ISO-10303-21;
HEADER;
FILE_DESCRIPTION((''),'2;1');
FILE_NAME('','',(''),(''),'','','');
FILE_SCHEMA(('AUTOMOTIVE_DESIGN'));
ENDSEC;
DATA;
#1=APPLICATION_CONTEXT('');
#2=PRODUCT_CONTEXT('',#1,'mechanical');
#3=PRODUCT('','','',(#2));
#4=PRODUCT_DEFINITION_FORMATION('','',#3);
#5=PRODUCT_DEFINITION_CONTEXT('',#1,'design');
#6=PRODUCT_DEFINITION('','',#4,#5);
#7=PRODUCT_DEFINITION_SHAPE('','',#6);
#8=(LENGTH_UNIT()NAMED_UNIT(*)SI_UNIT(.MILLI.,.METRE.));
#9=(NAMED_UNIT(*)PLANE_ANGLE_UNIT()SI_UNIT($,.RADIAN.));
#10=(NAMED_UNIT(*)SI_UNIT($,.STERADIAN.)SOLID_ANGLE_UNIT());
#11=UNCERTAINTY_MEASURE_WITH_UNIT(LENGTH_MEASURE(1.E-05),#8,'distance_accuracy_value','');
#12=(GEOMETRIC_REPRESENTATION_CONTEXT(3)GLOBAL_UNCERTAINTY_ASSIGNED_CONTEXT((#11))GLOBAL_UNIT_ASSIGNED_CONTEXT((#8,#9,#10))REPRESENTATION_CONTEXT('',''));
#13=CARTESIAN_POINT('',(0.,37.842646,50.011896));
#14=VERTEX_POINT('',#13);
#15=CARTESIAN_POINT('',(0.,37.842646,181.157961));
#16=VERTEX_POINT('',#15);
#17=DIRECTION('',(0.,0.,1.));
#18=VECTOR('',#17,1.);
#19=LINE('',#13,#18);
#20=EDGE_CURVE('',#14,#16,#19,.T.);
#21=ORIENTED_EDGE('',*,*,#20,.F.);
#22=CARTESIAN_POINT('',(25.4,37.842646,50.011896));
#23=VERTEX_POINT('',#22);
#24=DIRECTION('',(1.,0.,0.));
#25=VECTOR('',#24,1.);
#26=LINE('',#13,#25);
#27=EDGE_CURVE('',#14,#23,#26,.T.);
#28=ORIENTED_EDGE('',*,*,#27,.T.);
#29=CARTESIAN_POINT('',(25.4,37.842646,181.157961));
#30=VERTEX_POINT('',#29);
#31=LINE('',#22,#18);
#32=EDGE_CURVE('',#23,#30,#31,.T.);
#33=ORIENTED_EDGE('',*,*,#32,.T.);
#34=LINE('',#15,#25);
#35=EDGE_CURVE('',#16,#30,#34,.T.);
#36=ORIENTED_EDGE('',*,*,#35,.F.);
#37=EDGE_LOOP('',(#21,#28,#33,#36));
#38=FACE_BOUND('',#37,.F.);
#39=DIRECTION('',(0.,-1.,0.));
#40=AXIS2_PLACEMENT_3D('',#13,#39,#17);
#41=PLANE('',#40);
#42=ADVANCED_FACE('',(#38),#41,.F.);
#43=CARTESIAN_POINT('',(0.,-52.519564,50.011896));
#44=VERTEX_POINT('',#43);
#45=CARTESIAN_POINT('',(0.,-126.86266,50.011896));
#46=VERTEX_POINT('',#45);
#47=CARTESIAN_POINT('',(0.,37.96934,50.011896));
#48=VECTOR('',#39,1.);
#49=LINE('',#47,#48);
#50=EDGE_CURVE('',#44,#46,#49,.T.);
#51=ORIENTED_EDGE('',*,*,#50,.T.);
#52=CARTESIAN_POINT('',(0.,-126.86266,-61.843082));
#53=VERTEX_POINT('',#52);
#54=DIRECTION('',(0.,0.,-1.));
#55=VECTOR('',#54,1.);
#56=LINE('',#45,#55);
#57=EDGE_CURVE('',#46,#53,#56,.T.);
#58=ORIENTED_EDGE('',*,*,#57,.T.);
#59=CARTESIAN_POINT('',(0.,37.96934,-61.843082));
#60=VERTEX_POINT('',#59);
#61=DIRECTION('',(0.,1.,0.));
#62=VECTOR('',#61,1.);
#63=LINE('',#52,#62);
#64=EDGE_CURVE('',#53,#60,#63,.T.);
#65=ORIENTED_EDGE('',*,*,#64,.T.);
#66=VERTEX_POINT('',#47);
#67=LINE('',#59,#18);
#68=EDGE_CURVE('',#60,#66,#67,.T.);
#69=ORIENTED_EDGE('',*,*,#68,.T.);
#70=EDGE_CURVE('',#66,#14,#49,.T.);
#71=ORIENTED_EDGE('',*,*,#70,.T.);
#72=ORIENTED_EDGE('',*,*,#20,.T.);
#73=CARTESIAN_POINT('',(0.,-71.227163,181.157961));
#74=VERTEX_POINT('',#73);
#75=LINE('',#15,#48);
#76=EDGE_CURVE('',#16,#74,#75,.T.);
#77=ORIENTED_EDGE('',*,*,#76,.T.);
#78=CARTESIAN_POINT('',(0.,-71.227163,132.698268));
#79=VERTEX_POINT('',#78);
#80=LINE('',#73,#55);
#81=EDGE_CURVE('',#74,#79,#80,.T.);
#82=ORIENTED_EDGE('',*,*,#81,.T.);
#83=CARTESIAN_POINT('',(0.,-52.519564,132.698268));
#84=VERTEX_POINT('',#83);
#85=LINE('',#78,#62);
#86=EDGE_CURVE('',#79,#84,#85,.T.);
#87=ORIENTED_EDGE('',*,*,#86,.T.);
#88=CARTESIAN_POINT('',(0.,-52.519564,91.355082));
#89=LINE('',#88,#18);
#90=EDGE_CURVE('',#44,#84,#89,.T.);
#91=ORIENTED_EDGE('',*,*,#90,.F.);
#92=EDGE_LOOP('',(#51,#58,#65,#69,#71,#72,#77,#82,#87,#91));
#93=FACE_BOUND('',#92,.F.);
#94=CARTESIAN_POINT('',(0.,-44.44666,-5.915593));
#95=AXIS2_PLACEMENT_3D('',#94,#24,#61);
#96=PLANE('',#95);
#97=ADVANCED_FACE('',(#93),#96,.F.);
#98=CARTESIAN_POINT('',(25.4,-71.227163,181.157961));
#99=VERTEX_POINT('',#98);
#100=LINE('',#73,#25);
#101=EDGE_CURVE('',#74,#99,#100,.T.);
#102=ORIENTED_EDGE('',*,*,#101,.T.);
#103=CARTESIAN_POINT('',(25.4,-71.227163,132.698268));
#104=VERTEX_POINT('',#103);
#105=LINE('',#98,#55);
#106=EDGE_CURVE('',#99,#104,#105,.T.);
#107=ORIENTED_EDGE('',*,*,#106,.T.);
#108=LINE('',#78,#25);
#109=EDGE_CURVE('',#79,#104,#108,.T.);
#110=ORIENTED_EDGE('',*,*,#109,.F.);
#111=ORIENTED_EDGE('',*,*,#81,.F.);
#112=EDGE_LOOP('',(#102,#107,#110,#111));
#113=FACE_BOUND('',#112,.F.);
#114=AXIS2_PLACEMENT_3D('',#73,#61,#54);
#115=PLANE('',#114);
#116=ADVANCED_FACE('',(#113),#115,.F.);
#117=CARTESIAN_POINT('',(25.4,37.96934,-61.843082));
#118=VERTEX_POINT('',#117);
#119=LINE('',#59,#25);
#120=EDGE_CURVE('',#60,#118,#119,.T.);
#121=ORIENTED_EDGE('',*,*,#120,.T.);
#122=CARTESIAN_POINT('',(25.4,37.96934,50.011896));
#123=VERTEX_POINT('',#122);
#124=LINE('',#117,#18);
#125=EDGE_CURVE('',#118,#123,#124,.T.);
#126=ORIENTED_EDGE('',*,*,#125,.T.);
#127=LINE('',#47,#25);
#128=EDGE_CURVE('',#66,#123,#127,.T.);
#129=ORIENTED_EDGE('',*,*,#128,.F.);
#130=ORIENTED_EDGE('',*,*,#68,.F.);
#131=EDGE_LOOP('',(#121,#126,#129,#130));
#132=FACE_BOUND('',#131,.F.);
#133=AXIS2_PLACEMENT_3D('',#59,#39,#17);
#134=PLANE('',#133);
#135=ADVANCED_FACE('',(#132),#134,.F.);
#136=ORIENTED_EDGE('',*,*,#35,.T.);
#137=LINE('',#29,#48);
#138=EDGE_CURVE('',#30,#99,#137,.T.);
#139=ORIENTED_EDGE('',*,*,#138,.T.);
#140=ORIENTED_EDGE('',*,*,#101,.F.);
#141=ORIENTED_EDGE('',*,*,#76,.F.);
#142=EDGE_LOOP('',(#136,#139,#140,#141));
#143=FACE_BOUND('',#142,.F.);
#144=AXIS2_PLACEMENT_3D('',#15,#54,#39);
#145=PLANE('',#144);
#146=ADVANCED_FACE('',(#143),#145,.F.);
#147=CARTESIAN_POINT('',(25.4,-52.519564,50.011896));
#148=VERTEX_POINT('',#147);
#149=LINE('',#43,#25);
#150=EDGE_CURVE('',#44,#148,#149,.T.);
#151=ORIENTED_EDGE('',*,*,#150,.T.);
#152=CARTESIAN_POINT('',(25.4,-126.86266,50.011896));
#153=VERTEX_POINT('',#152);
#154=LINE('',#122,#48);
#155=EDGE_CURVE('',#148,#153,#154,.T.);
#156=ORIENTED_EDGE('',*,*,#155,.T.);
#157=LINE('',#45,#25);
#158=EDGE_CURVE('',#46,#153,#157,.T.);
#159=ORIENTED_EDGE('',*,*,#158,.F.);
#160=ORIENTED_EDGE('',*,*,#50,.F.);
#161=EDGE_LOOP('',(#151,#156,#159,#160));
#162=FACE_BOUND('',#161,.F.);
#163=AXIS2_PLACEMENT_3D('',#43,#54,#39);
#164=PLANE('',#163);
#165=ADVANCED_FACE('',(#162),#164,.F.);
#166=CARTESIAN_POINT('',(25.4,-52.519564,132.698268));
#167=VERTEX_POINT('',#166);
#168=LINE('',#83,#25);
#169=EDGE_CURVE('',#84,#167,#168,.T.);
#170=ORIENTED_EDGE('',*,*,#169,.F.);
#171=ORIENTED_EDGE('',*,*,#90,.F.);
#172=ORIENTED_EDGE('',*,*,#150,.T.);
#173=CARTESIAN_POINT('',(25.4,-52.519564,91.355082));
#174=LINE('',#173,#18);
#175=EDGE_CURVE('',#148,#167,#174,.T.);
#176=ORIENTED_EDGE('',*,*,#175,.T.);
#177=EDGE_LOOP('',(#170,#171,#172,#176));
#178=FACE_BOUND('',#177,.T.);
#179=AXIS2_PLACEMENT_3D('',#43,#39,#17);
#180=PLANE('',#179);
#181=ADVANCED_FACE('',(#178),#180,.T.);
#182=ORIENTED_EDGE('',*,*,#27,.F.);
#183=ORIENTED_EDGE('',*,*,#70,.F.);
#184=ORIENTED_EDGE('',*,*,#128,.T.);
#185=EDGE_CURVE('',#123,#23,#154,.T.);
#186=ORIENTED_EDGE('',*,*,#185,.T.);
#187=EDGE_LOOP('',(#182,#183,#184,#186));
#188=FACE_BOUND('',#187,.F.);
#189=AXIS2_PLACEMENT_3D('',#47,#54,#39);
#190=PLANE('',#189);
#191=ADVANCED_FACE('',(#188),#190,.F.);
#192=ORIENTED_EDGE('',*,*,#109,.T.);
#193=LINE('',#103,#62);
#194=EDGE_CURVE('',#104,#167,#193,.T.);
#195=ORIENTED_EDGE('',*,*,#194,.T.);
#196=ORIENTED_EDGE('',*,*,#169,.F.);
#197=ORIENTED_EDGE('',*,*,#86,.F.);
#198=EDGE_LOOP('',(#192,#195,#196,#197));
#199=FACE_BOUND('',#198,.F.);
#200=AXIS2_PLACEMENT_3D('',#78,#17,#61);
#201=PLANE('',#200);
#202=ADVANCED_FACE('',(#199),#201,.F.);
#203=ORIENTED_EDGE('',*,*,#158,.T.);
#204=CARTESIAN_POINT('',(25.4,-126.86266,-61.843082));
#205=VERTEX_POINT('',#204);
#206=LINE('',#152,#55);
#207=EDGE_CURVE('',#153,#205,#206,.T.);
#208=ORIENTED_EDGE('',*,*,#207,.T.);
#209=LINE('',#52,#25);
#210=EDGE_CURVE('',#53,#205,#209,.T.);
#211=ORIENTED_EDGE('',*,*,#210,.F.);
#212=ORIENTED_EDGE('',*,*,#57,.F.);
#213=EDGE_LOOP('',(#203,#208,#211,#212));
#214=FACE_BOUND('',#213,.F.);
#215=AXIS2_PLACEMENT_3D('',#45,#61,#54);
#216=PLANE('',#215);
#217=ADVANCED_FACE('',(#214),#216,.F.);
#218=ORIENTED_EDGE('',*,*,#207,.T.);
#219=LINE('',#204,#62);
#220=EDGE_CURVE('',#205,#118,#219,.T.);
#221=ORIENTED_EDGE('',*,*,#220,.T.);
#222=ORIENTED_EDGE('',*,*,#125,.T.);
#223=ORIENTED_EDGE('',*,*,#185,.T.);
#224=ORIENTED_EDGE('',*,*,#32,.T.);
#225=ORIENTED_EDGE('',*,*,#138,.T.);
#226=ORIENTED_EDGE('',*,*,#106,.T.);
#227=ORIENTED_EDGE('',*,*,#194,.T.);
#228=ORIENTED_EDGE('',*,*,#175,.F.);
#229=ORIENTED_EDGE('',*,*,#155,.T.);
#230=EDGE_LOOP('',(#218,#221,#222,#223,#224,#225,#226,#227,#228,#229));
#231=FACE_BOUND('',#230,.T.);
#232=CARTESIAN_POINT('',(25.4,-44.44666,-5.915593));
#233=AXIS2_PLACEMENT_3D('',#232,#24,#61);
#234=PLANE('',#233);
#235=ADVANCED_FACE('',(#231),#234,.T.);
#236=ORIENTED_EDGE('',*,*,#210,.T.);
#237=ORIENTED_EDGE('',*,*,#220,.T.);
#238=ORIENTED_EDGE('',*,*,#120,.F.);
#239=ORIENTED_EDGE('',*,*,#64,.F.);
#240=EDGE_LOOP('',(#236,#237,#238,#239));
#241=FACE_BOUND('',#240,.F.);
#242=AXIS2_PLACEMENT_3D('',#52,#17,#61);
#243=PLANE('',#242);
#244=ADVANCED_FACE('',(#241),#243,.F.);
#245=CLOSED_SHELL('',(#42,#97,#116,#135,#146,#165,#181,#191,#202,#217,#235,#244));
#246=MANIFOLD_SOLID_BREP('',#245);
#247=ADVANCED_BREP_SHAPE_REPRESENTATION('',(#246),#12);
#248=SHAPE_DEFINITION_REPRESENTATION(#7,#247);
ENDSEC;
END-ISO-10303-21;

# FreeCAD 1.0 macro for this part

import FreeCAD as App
import Part
import Sketcher
Q = App.Units.Quantity

doc = App.newDocument("Part")
body = doc.addObject("PartDesign::Body", "Body")

# Sketch on YZ plane
sketch1 = doc.addObject("Sketcher::SketchObject", "Sketch")
body.addObject(sketch1)
sketch1.AttachmentSupport = (doc.YZ_Plane, [""])
sketch1.MapMode = "FlatFace"
sketch1.addGeometry([
    Part.LineSegment(App.Vector(-126.86266, 50.011896, 0), App.Vector(-126.86266, -61.843082, 0)),  # 0
    Part.LineSegment(App.Vector(-126.86266, -61.843082, 0), App.Vector(37.96934, -61.843082, 0)),  # 1
    Part.LineSegment(App.Vector(37.96934, -61.843082, 0), App.Vector(37.96934, 50.011896, 0)),  # 2
    Part.LineSegment(App.Vector(37.96934, 50.011896, 0), App.Vector(37.842646, 50.011896, 0)),  # 3
    Part.LineSegment(App.Vector(37.842646, 50.011896, 0), App.Vector(37.842646, 181.157961, 0)),  # 4
    Part.LineSegment(App.Vector(37.842646, 181.157961, 0), App.Vector(-71.227163, 181.157961, 0)),  # 5
    Part.LineSegment(App.Vector(-71.227163, 181.157961, 0), App.Vector(-71.227163, 132.698268, 0)),  # 6
    Part.LineSegment(App.Vector(-71.227163, 132.698268, 0), App.Vector(-52.519564, 132.698268, 0)),  # 7
    Part.LineSegment(App.Vector(-52.519564, 132.698268, 0), App.Vector(-52.519564, 50.011896, 0)),  # 8
    Part.LineSegment(App.Vector(-52.519564, 50.011896, 0), App.Vector(-126.86266, 50.011896, 0)),  # 9
], False)
sketch1.addConstraint([
    Sketcher.Constraint("Coincident", 0, 2, 1, 1),
    Sketcher.Constraint("Coincident", 1, 2, 2, 1),
    Sketcher.Constraint("Coincident", 2, 2, 3, 1),
    Sketcher.Constraint("Coincident", 3, 2, 4, 1),
    Sketcher.Constraint("Coincident", 4, 2, 5, 1),
    Sketcher.Constraint("Coincident", 5, 2, 6, 1),
    Sketcher.Constraint("Coincident", 6, 2, 7, 1),
    Sketcher.Constraint("Coincident", 7, 2, 8, 1),
    Sketcher.Constraint("Coincident", 8, 2, 9, 1),
    Sketcher.Constraint("Coincident", 9, 2, 0, 1),
    Sketcher.Constraint("Vertical", 0),
    Sketcher.Constraint("Horizontal", 1),
    Sketcher.Constraint("Vertical", 2),
    Sketcher.Constraint("Horizontal", 3),
    Sketcher.Constraint("Vertical", 4),
    Sketcher.Constraint("Horizontal", 5),
    Sketcher.Constraint("Vertical", 6),
    Sketcher.Constraint("Horizontal", 7),
    Sketcher.Constraint("Vertical", 8),
    Sketcher.Constraint("Horizontal", 9),
    Sketcher.Constraint("Horizontal", 3, 2, 8, 2),
    Sketcher.Constraint("DistanceX", 1, 1, 1, 2, Q("164.832 mm")),
    Sketcher.Constraint("DistanceX", 7, 1, 7, 2, Q("18.707599 mm")),
    Sketcher.Constraint("DistanceX", 5, 2, 5, 1, Q("109.069809 mm")),
    Sketcher.Constraint("DistanceY", 0, 2, 0, 1, Q("111.854978 mm")),
    Sketcher.Constraint("DistanceX", 3, 2, 3, 1, Q("0.126694 mm")),
    Sketcher.Constraint("DistanceY", 4, 1, 4, 2, Q("131.146065 mm")),
    Sketcher.Constraint("DistanceY", 6, 2, 6, 1, Q("48.459693 mm")),
    Sketcher.Constraint("DistanceX", 0, 2, -1, 1, Q("126.86266 mm")),
    Sketcher.Constraint("DistanceY", -1, 1, 4, 2, Q("181.157961 mm")),
])
pad1 = doc.addObject("PartDesign::Pad", "Pad")
body.addObject(pad1)
pad1.Profile = sketch1
pad1.Length = Q("1 in")

doc.recompute()
